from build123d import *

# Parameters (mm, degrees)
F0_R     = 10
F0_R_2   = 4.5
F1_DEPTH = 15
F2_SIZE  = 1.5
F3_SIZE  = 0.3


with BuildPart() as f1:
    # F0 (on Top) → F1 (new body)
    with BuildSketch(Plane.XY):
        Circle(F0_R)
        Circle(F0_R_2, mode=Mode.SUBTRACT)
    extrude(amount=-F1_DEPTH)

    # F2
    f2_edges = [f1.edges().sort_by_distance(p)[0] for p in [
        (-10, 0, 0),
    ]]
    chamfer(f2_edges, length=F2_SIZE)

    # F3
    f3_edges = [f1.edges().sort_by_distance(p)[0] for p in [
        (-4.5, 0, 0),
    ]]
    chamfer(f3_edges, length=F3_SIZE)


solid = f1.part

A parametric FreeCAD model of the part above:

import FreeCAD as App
import Part
import Sketcher

V = App.Vector


def edges_at(feature, points):
    """Names of the edges that pass closest to the given points."""
    edges = feature.Shape.Edges
    near = lambda p: min(range(len(edges)), key=lambda i: edges[i].distToShape(Part.Vertex(*p))[0])
    return sorted({f"Edge{near(p) + 1}" for p in points})

doc = App.newDocument("Part")
params = doc.addObject("Spreadsheet::Sheet", "Params")
for row, (alias, value) in enumerate([
    ("sketch1_diameter", "20 mm"),
    ("sketch1_diameter2", "9 mm"),
    ("pad1_length", "15 mm"),
    ("chamfer_size", "1.5 mm"),
    ("chamfer2_size", "0.3 mm"),
], start=1):
    params.set(f"A{row}", alias)
    params.set(f"B{row}", "=" + value)
    params.setAlias(f"B{row}", alias)

body = doc.addObject("PartDesign::Body", "Body")

# Sketch on XY plane
sketch1 = body.newObject("Sketcher::SketchObject", "Sketch")
sketch1.AttachmentSupport = (doc.getObject("XY_Plane"), [""])
sketch1.MapMode = "FlatFace"
sketch1.addGeometry([
    Part.Circle(V(0, 0, 0), V(0, 0, 1), 10),
    Part.Circle(V(0, 0, 0), V(0, 0, 1), 4.5),
], False)
sketch1.addConstraint([
    Sketcher.Constraint("Coincident", 0, 3, -1, 1),
    Sketcher.Constraint("Coincident", 1, 3, -1, 1),
    Sketcher.Constraint("Diameter", 0, 20.0),
    Sketcher.Constraint("Diameter", 1, 9.0),
])
sketch1.setExpression("Constraints[2]", "Params.sketch1_diameter")
sketch1.setExpression("Constraints[3]", "Params.sketch1_diameter2")
pad1 = body.newObject("PartDesign::Pad", "Pad")
pad1.Profile = sketch1
pad1.setExpression("Length", "Params.pad1_length")
pad1.Reversed = True
doc.recompute()

chamfer = body.newObject("PartDesign::Chamfer", "Chamfer")
chamfer.Base = (pad1, edges_at(pad1, [(-10, 0, 0)]))
chamfer.setExpression("Size", "Params.chamfer_size")
doc.recompute()

chamfer2 = body.newObject("PartDesign::Chamfer", "Chamfer001")
chamfer2.Base = (chamfer, edges_at(chamfer, [(-4.5, 0, 0)]))
chamfer2.setExpression("Size", "Params.chamfer2_size")

doc.recompute()
